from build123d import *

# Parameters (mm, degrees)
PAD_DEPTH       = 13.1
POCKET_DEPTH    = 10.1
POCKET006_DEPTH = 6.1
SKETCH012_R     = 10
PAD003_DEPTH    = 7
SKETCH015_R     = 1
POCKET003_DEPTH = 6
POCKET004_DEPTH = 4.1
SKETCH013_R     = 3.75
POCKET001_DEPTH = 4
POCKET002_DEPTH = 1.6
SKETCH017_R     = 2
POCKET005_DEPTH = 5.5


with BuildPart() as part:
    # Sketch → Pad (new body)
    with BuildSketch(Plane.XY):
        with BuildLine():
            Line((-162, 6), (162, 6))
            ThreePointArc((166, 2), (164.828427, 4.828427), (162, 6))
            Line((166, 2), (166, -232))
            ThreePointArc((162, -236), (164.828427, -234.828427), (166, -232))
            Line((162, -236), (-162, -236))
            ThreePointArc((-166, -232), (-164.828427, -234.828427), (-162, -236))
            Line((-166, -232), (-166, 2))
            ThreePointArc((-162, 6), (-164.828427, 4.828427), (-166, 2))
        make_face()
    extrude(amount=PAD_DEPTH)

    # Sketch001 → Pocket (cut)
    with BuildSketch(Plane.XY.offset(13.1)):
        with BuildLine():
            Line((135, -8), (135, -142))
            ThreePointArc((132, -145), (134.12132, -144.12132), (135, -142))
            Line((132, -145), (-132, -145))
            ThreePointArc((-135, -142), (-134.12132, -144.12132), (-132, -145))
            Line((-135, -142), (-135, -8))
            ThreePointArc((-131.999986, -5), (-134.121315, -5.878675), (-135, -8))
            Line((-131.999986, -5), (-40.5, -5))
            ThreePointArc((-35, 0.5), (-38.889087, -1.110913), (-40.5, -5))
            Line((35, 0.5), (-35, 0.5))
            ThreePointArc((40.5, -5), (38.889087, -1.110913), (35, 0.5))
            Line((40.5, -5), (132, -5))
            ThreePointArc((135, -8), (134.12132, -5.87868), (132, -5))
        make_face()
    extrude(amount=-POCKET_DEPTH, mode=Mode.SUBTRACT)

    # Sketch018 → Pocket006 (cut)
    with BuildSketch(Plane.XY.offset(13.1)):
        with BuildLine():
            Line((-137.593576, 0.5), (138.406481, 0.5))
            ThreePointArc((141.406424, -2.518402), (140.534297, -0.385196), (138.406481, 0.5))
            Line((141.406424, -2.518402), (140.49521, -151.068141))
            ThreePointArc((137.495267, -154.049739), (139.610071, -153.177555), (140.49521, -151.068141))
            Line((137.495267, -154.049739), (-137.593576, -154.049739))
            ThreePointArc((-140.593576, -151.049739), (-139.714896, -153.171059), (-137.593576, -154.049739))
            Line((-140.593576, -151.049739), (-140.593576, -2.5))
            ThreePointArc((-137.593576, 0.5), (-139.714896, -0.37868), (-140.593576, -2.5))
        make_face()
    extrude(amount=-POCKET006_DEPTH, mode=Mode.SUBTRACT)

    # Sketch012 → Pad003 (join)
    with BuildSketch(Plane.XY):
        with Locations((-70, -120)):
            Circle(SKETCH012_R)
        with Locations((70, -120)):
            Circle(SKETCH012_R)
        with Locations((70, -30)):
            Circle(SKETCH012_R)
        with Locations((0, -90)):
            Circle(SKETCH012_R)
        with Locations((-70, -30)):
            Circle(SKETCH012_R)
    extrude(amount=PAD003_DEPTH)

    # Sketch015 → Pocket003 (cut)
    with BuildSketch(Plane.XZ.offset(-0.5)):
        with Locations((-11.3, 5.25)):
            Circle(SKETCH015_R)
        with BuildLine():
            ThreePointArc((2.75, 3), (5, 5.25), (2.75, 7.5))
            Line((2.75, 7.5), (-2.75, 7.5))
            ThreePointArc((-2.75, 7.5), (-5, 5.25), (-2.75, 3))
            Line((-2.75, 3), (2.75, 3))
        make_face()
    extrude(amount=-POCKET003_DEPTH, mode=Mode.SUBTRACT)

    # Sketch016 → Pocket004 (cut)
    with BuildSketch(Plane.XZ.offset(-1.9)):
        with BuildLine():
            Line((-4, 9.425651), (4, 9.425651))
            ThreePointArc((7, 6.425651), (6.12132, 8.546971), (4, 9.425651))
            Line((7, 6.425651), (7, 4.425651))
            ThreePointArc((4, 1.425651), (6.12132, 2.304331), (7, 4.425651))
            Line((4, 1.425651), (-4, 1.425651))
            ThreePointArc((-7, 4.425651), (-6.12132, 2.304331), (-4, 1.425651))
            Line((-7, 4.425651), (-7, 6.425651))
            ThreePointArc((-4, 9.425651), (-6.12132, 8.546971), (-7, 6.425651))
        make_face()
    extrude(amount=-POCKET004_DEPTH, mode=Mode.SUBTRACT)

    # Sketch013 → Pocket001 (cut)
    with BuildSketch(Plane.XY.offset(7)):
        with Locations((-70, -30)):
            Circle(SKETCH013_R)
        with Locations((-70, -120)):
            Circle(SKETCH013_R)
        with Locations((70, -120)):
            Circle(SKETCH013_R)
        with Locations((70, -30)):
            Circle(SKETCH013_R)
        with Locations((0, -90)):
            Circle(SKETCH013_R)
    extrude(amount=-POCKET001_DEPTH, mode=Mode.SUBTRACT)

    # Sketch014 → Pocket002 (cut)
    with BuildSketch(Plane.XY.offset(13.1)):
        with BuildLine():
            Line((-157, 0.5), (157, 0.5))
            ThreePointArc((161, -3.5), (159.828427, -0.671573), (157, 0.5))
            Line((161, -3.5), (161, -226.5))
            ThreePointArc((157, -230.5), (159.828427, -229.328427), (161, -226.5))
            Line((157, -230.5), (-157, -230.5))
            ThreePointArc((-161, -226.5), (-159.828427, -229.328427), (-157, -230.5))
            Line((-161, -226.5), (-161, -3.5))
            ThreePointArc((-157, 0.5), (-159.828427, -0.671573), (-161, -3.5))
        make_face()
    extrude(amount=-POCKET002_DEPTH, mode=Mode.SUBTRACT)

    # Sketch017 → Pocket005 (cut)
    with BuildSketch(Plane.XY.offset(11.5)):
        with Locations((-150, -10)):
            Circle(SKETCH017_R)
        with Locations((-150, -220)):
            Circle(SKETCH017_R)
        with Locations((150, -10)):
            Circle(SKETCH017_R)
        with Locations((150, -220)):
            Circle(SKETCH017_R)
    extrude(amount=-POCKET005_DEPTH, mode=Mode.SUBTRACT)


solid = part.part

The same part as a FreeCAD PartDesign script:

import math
import FreeCAD as App
import Part
import Sketcher

V = App.Vector

doc = App.newDocument("Part")
body = doc.addObject("PartDesign::Body", "Body")

sketch1 = body.newObject("Sketcher::SketchObject", "Sketch")
sketch1.AttachmentSupport = (doc.getObject("XY_Plane"), [""])
sketch1.MapMode = "FlatFace"
sketch1.addGeometry([
    Part.LineSegment(V(162, 6, 0), V(-162, 6, 0)),
    Part.ArcOfCircle(Part.Circle(V(-162, 2, 0), V(0, 0, 1), 4), math.radians(90), math.radians(180)),
    Part.LineSegment(V(-166, 2, 0), V(-166, -232, 0)),
    Part.ArcOfCircle(Part.Circle(V(-162, -232, 0), V(0, 0, 1), 4), math.radians(-180), math.radians(-90)),
    Part.LineSegment(V(-162, -236, 0), V(162, -236, 0)),
    Part.ArcOfCircle(Part.Circle(V(162, -232, 0), V(0, 0, 1), 4), math.radians(-90), math.radians(0)),
    Part.LineSegment(V(166, -232, 0), V(166, 2, 0)),
    Part.ArcOfCircle(Part.Circle(V(162, 2, 0), V(0, 0, 1), 4), math.radians(0), math.radians(90)),
], False)
sketch1.addConstraint([
    Sketcher.Constraint("Tangent", 0, 2, 1, 1),
    Sketcher.Constraint("Tangent", 1, 2, 2, 1),
    Sketcher.Constraint("Tangent", 2, 2, 3, 1),
    Sketcher.Constraint("Tangent", 3, 2, 4, 1),
    Sketcher.Constraint("Tangent", 4, 2, 5, 1),
    Sketcher.Constraint("Tangent", 5, 2, 6, 1),
    Sketcher.Constraint("Tangent", 6, 2, 7, 1),
    Sketcher.Constraint("Tangent", 7, 2, 0, 1),
    Sketcher.Constraint("Horizontal", 0),
    Sketcher.Constraint("Vertical", 2),
    Sketcher.Constraint("Horizontal", 4),
    Sketcher.Constraint("Vertical", 6),
    Sketcher.Constraint("Equal", 1, 3),
    Sketcher.Constraint("Equal", 3, 5),
    Sketcher.Constraint("Equal", 5, 7),
    Sketcher.Constraint("Radius", 1, 4.0),
    Sketcher.Constraint("DistanceX", 0, 2, 0, 1, 324.0),
    Sketcher.Constraint("DistanceY", 2, 2, 2, 1, 234.0),
    Sketcher.Constraint("DistanceX", 1, 3, -1, 1, 162.0),
    Sketcher.Constraint("DistanceY", -1, 1, 1, 3, 2.0),
])
pad1 = body.newObject("PartDesign::Pad", "Pad")
pad1.Profile = sketch1
pad1.Length = 13.1

sketch2 = body.newObject("Sketcher::SketchObject", "Sketch001")
sketch2.AttachmentSupport = (doc.getObject("XY_Plane"), [""])
sketch2.MapMode = "FlatFace"
sketch2.AttachmentOffset = App.Placement(V(0, 0, 13.1), App.Rotation())
sketch2.addGeometry([
    Part.LineSegment(V(135, -142, 0), V(135, -8, 0)),
    Part.ArcOfCircle(Part.Circle(V(132, -8, 0), V(0, 0, 1), 3), math.radians(0), math.radians(90)),
    Part.LineSegment(V(132, -5, 0), V(40.5, -5, 0)),
    Part.ArcOfCircle(Part.Circle(V(35, -5, 0), V(0, 0, 1), 5.5), math.radians(0), math.radians(90)),
    Part.LineSegment(V(35, 0.5, 0), V(-35, 0.5, 0)),
    Part.ArcOfCircle(Part.Circle(V(-35, -5, 0), V(0, 0, 1), 5.5), math.radians(90), math.radians(180)),
    Part.LineSegment(V(-40.5, -5, 0), V(-132, -5, 0)),
    Part.ArcOfCircle(Part.Circle(V(-132, -8, 0), V(0, 0, 1), 3), math.radians(90), math.radians(180)),
    Part.LineSegment(V(-135, -8, 0), V(-135, -142, 0)),
    Part.ArcOfCircle(Part.Circle(V(-132, -142, 0), V(0, 0, 1), 3), math.radians(-180), math.radians(-90)),
    Part.LineSegment(V(-132, -145, 0), V(132, -145, 0)),
    Part.ArcOfCircle(Part.Circle(V(132, -142, 0), V(0, 0, 1), 3), math.radians(-90), math.radians(0)),
], False)
sketch2.addConstraint([
    Sketcher.Constraint("Tangent", 0, 2, 1, 1),
    Sketcher.Constraint("Tangent", 1, 2, 2, 1),
    Sketcher.Constraint("Coincident", 2, 2, 3, 1),
    Sketcher.Constraint("Tangent", 3, 2, 4, 1),
    Sketcher.Constraint("Tangent", 4, 2, 5, 1),
    Sketcher.Constraint("Coincident", 5, 2, 6, 1),
    Sketcher.Constraint("Coincident", 6, 2, 7, 1),
    Sketcher.Constraint("Tangent", 7, 2, 8, 1),
    Sketcher.Constraint("Tangent", 8, 2, 9, 1),
    Sketcher.Constraint("Tangent", 9, 2, 10, 1),
    Sketcher.Constraint("Tangent", 10, 2, 11, 1),
    Sketcher.Constraint("Tangent", 11, 2, 0, 1),
    Sketcher.Constraint("Vertical", 0),
    Sketcher.Constraint("Horizontal", 2),
    Sketcher.Constraint("Horizontal", 4),
    Sketcher.Constraint("Horizontal", 6),
    Sketcher.Constraint("Vertical", 8),
    Sketcher.Constraint("Horizontal", 10),
    Sketcher.Constraint("Equal", 3, 5),
    Sketcher.Constraint("Equal", 1, 7),
    Sketcher.Constraint("Equal", 7, 9),
    Sketcher.Constraint("Equal", 9, 11),
    Sketcher.Constraint("Symmetric", 1, 3, 7, 3, -2),
    Sketcher.Constraint("Horizontal", 5, 3, 1, 2),
    Sketcher.Constraint("Radius", 1, 3.000001),
    Sketcher.Constraint("Radius", 3, 5.500001),
    Sketcher.Constraint("DistanceX", 4, 2, 4, 1, 70.0),
    Sketcher.Constraint("DistanceX", 10, 1, 10, 2, 264.0),
    Sketcher.Constraint("DistanceY", 0, 1, 0, 2, 134.0),
    Sketcher.Constraint("DistanceX", 2, 2, 2, 1, 91.5),
    Sketcher.Constraint("DistanceY", 1, 3, -1, 1, 8.000001),
    Sketcher.Constraint("DistanceX", 6, 2, 6, 1, 91.499986),
])
pocket1 = body.newObject("PartDesign::Pocket", "Pocket")
pocket1.Profile = sketch2
pocket1.Length = 10.1

sketch3 = body.newObject("Sketcher::SketchObject", "Sketch002")
sketch3.AttachmentSupport = (doc.getObject("XY_Plane"), [""])
sketch3.MapMode = "FlatFace"
sketch3.AttachmentOffset = App.Placement(V(0, 0, 13.1), App.Rotation())
sketch3.addGeometry([
    Part.LineSegment(V(138.406481, 0.5, 0), V(-137.593576, 0.5, 0)),
    Part.ArcOfCircle(Part.Circle(V(-137.593575, -2.500001, 0), V(0, 0, 1), 3.000001), math.radians(90.000022), math.radians(179.999978)),
    Part.LineSegment(V(-140.593576, -2.5, 0), V(-140.593576, -151.049739, 0)),
    Part.ArcOfCircle(Part.Circle(V(-137.593575, -151.049738, 0), V(0, 0, 1), 3.000001), math.radians(-179.999978), math.radians(-90.000022)),
    Part.LineSegment(V(-137.593576, -154.049739, 0), V(137.495267, -154.049739, 0)),
    Part.ArcOfCircle(Part.Circle(V(137.495266, -151.049739, 0), V(0, 0, 1), 3), math.radians(-89.999984), math.radians(-0.35146)),
    Part.LineSegment(V(140.49521, -151.068141, 0), V(141.406424, -2.518402, 0)),
    Part.ArcOfCircle(Part.Circle(V(138.40648, -2.5, 0), V(0, 0, 1), 3), math.radians(-0.351449), math.radians(89.999984)),
], False)
sketch3.addConstraint([
    Sketcher.Constraint("Tangent", 0, 2, 1, 1),
    Sketcher.Constraint("Tangent", 1, 2, 2, 1),
    Sketcher.Constraint("Tangent", 2, 2, 3, 1),
    Sketcher.Constraint("Tangent", 3, 2, 4, 1),
    Sketcher.Constraint("Tangent", 4, 2, 5, 1),
    Sketcher.Constraint("Tangent", 5, 2, 6, 1),
    Sketcher.Constraint("Tangent", 6, 2, 7, 1),
    Sketcher.Constraint("Tangent", 7, 2, 0, 1),
    Sketcher.Constraint("Horizontal", 0),
    Sketcher.Constraint("Vertical", 2),
    Sketcher.Constraint("Horizontal", 4),
    Sketcher.Constraint("Equal", 1, 3),
    Sketcher.Constraint("Equal", 3, 5),
    Sketcher.Constraint("Equal", 5, 7),
    Sketcher.Constraint("Radius", 1, 3.000001),
    Sketcher.Constraint("DistanceX", 1, 3, 6, 2, 278.999999),
    Sketcher.Constraint("DistanceY", 1, 3, -1, 1, 2.500001),
    Sketcher.Constraint("DistanceY", 2, 2, 2, 1, 148.549739),
    Sketcher.Constraint("DistanceY", 6, 2, -1, 1, 2.518402),
    Sketcher.Constraint("DistanceX", -1, 1, 7, 3, 138.40648),
])
pocket2 = body.newObject("PartDesign::Pocket", "Pocket001")
pocket2.Profile = sketch3
pocket2.Length = 6.1

sketch4 = body.newObject("Sketcher::SketchObject", "Sketch003")
sketch4.AttachmentSupport = (doc.getObject("XY_Plane"), [""])
sketch4.MapMode = "FlatFace"
sketch4.addGeometry([
    Part.Circle(V(-70, -120, 0), V(0, 0, 1), 10),
    Part.Circle(V(70, -120, 0), V(0, 0, 1), 10),
    Part.Circle(V(70, -30, 0), V(0, 0, 1), 10),
    Part.Circle(V(0, -90, 0), V(0, 0, 1), 10),
    Part.Circle(V(-70, -30, 0), V(0, 0, 1), 10),
], False)
sketch4.addConstraint([
    Sketcher.Constraint("Equal", 0, 1),
    Sketcher.Constraint("Equal", 1, 2),
    Sketcher.Constraint("Equal", 2, 3),
    Sketcher.Constraint("Equal", 3, 4),
    Sketcher.Constraint("Symmetric", 0, 3, 1, 3, -2),
    Sketcher.Constraint("Symmetric", 2, 3, 4, 3, -2),
    Sketcher.Constraint("PointOnObject", 3, 3, -2),
    Sketcher.Constraint("Vertical", 1, 3, 2, 3),
    Sketcher.Constraint("Diameter", 0, 20.0),
    Sketcher.Constraint("DistanceX", 0, 3, -1, 1, 70.0),
    Sketcher.Constraint("DistanceY", 0, 3, -1, 1, 120.0),
    Sketcher.Constraint("DistanceY", 2, 3, -1, 1, 30.0),
    Sketcher.Constraint("DistanceY", 3, 3, -1, 1, 90.0),
])
pad2 = body.newObject("PartDesign::Pad", "Pad001")
pad2.Profile = sketch4
pad2.Length = 7

sketch5 = body.newObject("Sketcher::SketchObject", "Sketch004")
sketch5.AttachmentSupport = (doc.getObject("XZ_Plane"), [""])
sketch5.MapMode = "FlatFace"
sketch5.AttachmentOffset = App.Placement(V(0, 0, -0.5), App.Rotation())
sketch5.addGeometry([
    Part.Circle(V(-11.3, 5.2, 0), V(0, 0, 1), 1),
    Part.ArcOfCircle(Part.Circle(V(2.8, 5.2, 0), V(0, 0, 1), 2.2), math.radians(-90), math.radians(90)),
    Part.LineSegment(V(2.8, 7.5, 0), V(-2.8, 7.5, 0)),
    Part.ArcOfCircle(Part.Circle(V(-2.8, 5.2, 0), V(0, 0, 1), 2.2), math.radians(90), math.radians(270)),
    Part.LineSegment(V(-2.8, 3, 0), V(2.8, 3, 0)),
], False)
sketch5.addConstraint([
    Sketcher.Constraint("Tangent", 1, 2, 2, 1),
    Sketcher.Constraint("Tangent", 2, 2, 3, 1),
    Sketcher.Constraint("Tangent", 3, 2, 4, 1),
    Sketcher.Constraint("Tangent", 4, 2, 1, 1),
    Sketcher.Constraint("Horizontal", 2),
    Sketcher.Constraint("Horizontal", 4),
    Sketcher.Constraint("Horizontal", 0, 3, 1, 3),
    Sketcher.Constraint("Diameter", 0, 2.0),
    Sketcher.Constraint("Radius", 1, 2.25),
    Sketcher.Constraint("DistanceX", 2, 2, 2, 1, 5.5),
    Sketcher.Constraint("DistanceY", -1, 1, 3, 2, 3.0),
    Sketcher.Constraint("DistanceX", 0, 3, -1, 1, 11.3),
    Sketcher.Constraint("DistanceX", -1, 1, 1, 3, 2.75),
])
pocket3 = body.newObject("PartDesign::Pocket", "Pocket002")
pocket3.Profile = sketch5
pocket3.Length = 6

sketch6 = body.newObject("Sketcher::SketchObject", "Sketch005")
sketch6.AttachmentSupport = (doc.getObject("XZ_Plane"), [""])
sketch6.MapMode = "FlatFace"
sketch6.AttachmentOffset = App.Placement(V(0, 0, -1.9), App.Rotation())
sketch6.addGeometry([
    Part.LineSegment(V(4, 9.4, 0), V(-4, 9.4, 0)),
    Part.ArcOfCircle(Part.Circle(V(-4, 6.4, 0), V(0, 0, 1), 3), math.radians(90), math.radians(180)),
    Part.LineSegment(V(-7, 6.4, 0), V(-7, 4.4, 0)),
    Part.ArcOfCircle(Part.Circle(V(-4, 4.4, 0), V(0, 0, 1), 3), math.radians(-180), math.radians(-90)),
    Part.LineSegment(V(-4, 1.4, 0), V(4, 1.4, 0)),
    Part.ArcOfCircle(Part.Circle(V(4, 4.4, 0), V(0, 0, 1), 3), math.radians(-90), math.radians(0)),
    Part.LineSegment(V(7, 4.4, 0), V(7, 6.4, 0)),
    Part.ArcOfCircle(Part.Circle(V(4, 6.4, 0), V(0, 0, 1), 3), math.radians(0), math.radians(90)),
], False)
sketch6.addConstraint([
    Sketcher.Constraint("Tangent", 0, 2, 1, 1),
    Sketcher.Constraint("Tangent", 1, 2, 2, 1),
    Sketcher.Constraint("Tangent", 2, 2, 3, 1),
    Sketcher.Constraint("Tangent", 3, 2, 4, 1),
    Sketcher.Constraint("Tangent", 4, 2, 5, 1),
    Sketcher.Constraint("Tangent", 5, 2, 6, 1),
    Sketcher.Constraint("Tangent", 6, 2, 7, 1),
    Sketcher.Constraint("Tangent", 7, 2, 0, 1),
    Sketcher.Constraint("Horizontal", 0),
    Sketcher.Constraint("Vertical", 2),
    Sketcher.Constraint("Horizontal", 4),
    Sketcher.Constraint("Vertical", 6),
    Sketcher.Constraint("Equal", 1, 3),
    Sketcher.Constraint("Equal", 3, 5),
    Sketcher.Constraint("Equal", 5, 7),
    Sketcher.Constraint("Radius", 1, 3.000001),
    Sketcher.Constraint("DistanceX", 0, 2, 0, 1, 8.0),
    Sketcher.Constraint("DistanceY", 2, 2, 2, 1, 2.0),
    Sketcher.Constraint("DistanceX", 1, 3, -1, 1, 3.999999),
    Sketcher.Constraint("DistanceY", -1, 1, 1, 3, 6.42565),
])
pocket4 = body.newObject("PartDesign::Pocket", "Pocket003")
pocket4.Profile = sketch6
pocket4.Length = 4.1

sketch7 = body.newObject("Sketcher::SketchObject", "Sketch006")
sketch7.AttachmentSupport = (doc.getObject("XY_Plane"), [""])
sketch7.MapMode = "FlatFace"
sketch7.AttachmentOffset = App.Placement(V(0, 0, 7), App.Rotation())
sketch7.addGeometry([
    Part.Circle(V(-70, -30, 0), V(0, 0, 1), 3.8),
    Part.Circle(V(-70, -120, 0), V(0, 0, 1), 3.8),
    Part.Circle(V(70, -120, 0), V(0, 0, 1), 3.8),
    Part.Circle(V(70, -30, 0), V(0, 0, 1), 3.8),
    Part.Circle(V(0, -90, 0), V(0, 0, 1), 3.8),
], False)
sketch7.addConstraint([
    Sketcher.Constraint("Equal", 0, 1),
    Sketcher.Constraint("Equal", 1, 2),
    Sketcher.Constraint("Equal", 2, 3),
    Sketcher.Constraint("Equal", 3, 4),
    Sketcher.Constraint("Symmetric", 1, 3, 2, 3, -2),
    Sketcher.Constraint("Symmetric", 0, 3, 3, 3, -2),
    Sketcher.Constraint("PointOnObject", 4, 3, -2),
    Sketcher.Constraint("Vertical", 0, 3, 1, 3),
    Sketcher.Constraint("Diameter", 0, 7.5),
    Sketcher.Constraint("DistanceX", 0, 3, -1, 1, 70.0),
    Sketcher.Constraint("DistanceY", 0, 3, -1, 1, 30.0),
    Sketcher.Constraint("DistanceY", 1, 3, -1, 1, 120.0),
    Sketcher.Constraint("DistanceY", 4, 3, -1, 1, 90.0),
])
pocket5 = body.newObject("PartDesign::Pocket", "Pocket004")
pocket5.Profile = sketch7
pocket5.Length = 4

sketch8 = body.newObject("Sketcher::SketchObject", "Sketch007")
sketch8.AttachmentSupport = (doc.getObject("XY_Plane"), [""])
sketch8.MapMode = "FlatFace"
sketch8.AttachmentOffset = App.Placement(V(0, 0, 13.1), App.Rotation())
sketch8.addGeometry([
    Part.LineSegment(V(157, 0.5, 0), V(-157, 0.5, 0)),
    Part.ArcOfCircle(Part.Circle(V(-157, -3.5, 0), V(0, 0, 1), 4), math.radians(90), math.radians(180)),
    Part.LineSegment(V(-161, -3.5, 0), V(-161, -226.5, 0)),
    Part.ArcOfCircle(Part.Circle(V(-157, -226.5, 0), V(0, 0, 1), 4), math.radians(-180), math.radians(-90)),
    Part.LineSegment(V(-157, -230.5, 0), V(157, -230.5, 0)),
    Part.ArcOfCircle(Part.Circle(V(157, -226.5, 0), V(0, 0, 1), 4), math.radians(-90), math.radians(0)),
    Part.LineSegment(V(161, -226.5, 0), V(161, -3.5, 0)),
    Part.ArcOfCircle(Part.Circle(V(157, -3.5, 0), V(0, 0, 1), 4), math.radians(0), math.radians(90)),
], False)
sketch8.addConstraint([
    Sketcher.Constraint("Tangent", 0, 2, 1, 1),
    Sketcher.Constraint("Tangent", 1, 2, 2, 1),
    Sketcher.Constraint("Tangent", 2, 2, 3, 1),
    Sketcher.Constraint("Tangent", 3, 2, 4, 1),
    Sketcher.Constraint("Tangent", 4, 2, 5, 1),
    Sketcher.Constraint("Tangent", 5, 2, 6, 1),
    Sketcher.Constraint("Tangent", 6, 2, 7, 1),
    Sketcher.Constraint("Tangent", 7, 2, 0, 1),
    Sketcher.Constraint("Horizontal", 0),
    Sketcher.Constraint("Vertical", 2),
    Sketcher.Constraint("Horizontal", 4),
    Sketcher.Constraint("Vertical", 6),
    Sketcher.Constraint("Equal", 1, 3),
    Sketcher.Constraint("Equal", 3, 5),
    Sketcher.Constraint("Equal", 5, 7),
    Sketcher.Constraint("Radius", 1, 4.0),
    Sketcher.Constraint("DistanceX", 0, 2, 0, 1, 314.0),
    Sketcher.Constraint("DistanceY", 2, 2, 2, 1, 223.0),
    Sketcher.Constraint("DistanceX", 1, 3, -1, 1, 157.0),
    Sketcher.Constraint("DistanceY", 1, 3, -1, 1, 3.5),
])
pocket6 = body.newObject("PartDesign::Pocket", "Pocket005")
pocket6.Profile = sketch8
pocket6.Length = 1.6

sketch9 = body.newObject("Sketcher::SketchObject", "Sketch008")
sketch9.AttachmentSupport = (doc.getObject("XY_Plane"), [""])
sketch9.MapMode = "FlatFace"
sketch9.AttachmentOffset = App.Placement(V(0, 0, 11.5), App.Rotation())
sketch9.addGeometry([
    Part.Circle(V(-150, -10, 0), V(0, 0, 1), 2),
    Part.Circle(V(-150, -220, 0), V(0, 0, 1), 2),
    Part.Circle(V(150, -10, 0), V(0, 0, 1), 2),
    Part.Circle(V(150, -220, 0), V(0, 0, 1), 2),
], False)
sketch9.addConstraint([
    Sketcher.Constraint("Equal", 0, 1),
    Sketcher.Constraint("Equal", 1, 2),
    Sketcher.Constraint("Equal", 2, 3),
    Sketcher.Constraint("Symmetric", 0, 3, 2, 3, -2),
    Sketcher.Constraint("Symmetric", 1, 3, 3, 3, -2),
    Sketcher.Constraint("Vertical", 0, 3, 1, 3),
    Sketcher.Constraint("Diameter", 0, 4.0),
    Sketcher.Constraint("DistanceX", 0, 3, -1, 1, 150.0),
    Sketcher.Constraint("DistanceY", 0, 3, -1, 1, 10.0),
    Sketcher.Constraint("DistanceY", 1, 3, -1, 1, 220.0),
])
pocket7 = body.newObject("PartDesign::Pocket", "Pocket006")
pocket7.Profile = sketch9
pocket7.Length = 5.5

doc.recompute()
